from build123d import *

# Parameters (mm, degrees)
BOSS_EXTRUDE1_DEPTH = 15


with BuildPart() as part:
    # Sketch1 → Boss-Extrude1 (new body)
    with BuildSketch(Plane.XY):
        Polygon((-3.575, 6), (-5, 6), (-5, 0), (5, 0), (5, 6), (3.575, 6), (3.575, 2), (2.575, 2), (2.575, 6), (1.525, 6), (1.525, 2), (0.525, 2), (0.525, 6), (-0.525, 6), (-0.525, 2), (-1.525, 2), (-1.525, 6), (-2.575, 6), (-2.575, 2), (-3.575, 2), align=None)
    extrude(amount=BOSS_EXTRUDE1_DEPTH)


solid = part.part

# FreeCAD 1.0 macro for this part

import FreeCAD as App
import Part
import Sketcher
from FreeCAD import Vector
Q = App.Units.Quantity

doc = App.newDocument("Part")
body = doc.addObject("PartDesign::Body", "Body")

# Sketch on XY plane
sketch1 = body.newObject("Sketcher::SketchObject", "Sketch")
sketch1.AttachmentSupport = (doc.getObject("XY_Plane"), [""])
sketch1.MapMode = "FlatFace"
sketch1.addGeometry(Part.LineSegment(Vector(-3.6, 6, 0), Vector(-5, 6, 0)), False)
sketch1.addGeometry(Part.LineSegment(Vector(-5, 6, 0), Vector(-5, 0, 0)), False)
sketch1.addGeometry(Part.LineSegment(Vector(-5, 0, 0), Vector(5, 0, 0)), False)
sketch1.addGeometry(Part.LineSegment(Vector(5, 0, 0), Vector(5, 6, 0)), False)
sketch1.addGeometry(Part.LineSegment(Vector(5, 6, 0), Vector(3.6, 6, 0)), False)
sketch1.addGeometry(Part.LineSegment(Vector(3.6, 6, 0), Vector(3.6, 2, 0)), False)
sketch1.addGeometry(Part.LineSegment(Vector(3.6, 2, 0), Vector(2.6, 2, 0)), False)
sketch1.addGeometry(Part.LineSegment(Vector(2.6, 2, 0), Vector(2.6, 6, 0)), False)
sketch1.addGeometry(Part.LineSegment(Vector(2.6, 6, 0), Vector(1.5, 6, 0)), False)
sketch1.addGeometry(Part.LineSegment(Vector(1.5, 6, 0), Vector(1.5, 2, 0)), False)
sketch1.addGeometry(Part.LineSegment(Vector(1.5, 2, 0), Vector(0.5, 2, 0)), False)
sketch1.addGeometry(Part.LineSegment(Vector(0.5, 2, 0), Vector(0.5, 6, 0)), False)
sketch1.addGeometry(Part.LineSegment(Vector(0.5, 6, 0), Vector(-0.5, 6, 0)), False)
sketch1.addGeometry(Part.LineSegment(Vector(-0.5, 6, 0), Vector(-0.5, 2, 0)), False)
sketch1.addGeometry(Part.LineSegment(Vector(-0.5, 2, 0), Vector(-1.5, 2, 0)), False)
sketch1.addGeometry(Part.LineSegment(Vector(-1.5, 2, 0), Vector(-1.5, 6, 0)), False)
sketch1.addGeometry(Part.LineSegment(Vector(-1.5, 6, 0), Vector(-2.6, 6, 0)), False)
sketch1.addGeometry(Part.LineSegment(Vector(-2.6, 6, 0), Vector(-2.6, 2, 0)), False)
sketch1.addGeometry(Part.LineSegment(Vector(-2.6, 2, 0), Vector(-3.6, 2, 0)), False)
sketch1.addGeometry(Part.LineSegment(Vector(-3.6, 2, 0), Vector(-3.6, 6, 0)), False)
sketch1.addConstraint(Sketcher.Constraint("Coincident", 0, 2, 1, 1))
sketch1.addConstraint(Sketcher.Constraint("Coincident", 1, 2, 2, 1))
sketch1.addConstraint(Sketcher.Constraint("Coincident", 2, 2, 3, 1))
sketch1.addConstraint(Sketcher.Constraint("Coincident", 3, 2, 4, 1))
sketch1.addConstraint(Sketcher.Constraint("Coincident", 4, 2, 5, 1))
sketch1.addConstraint(Sketcher.Constraint("Coincident", 5, 2, 6, 1))
sketch1.addConstraint(Sketcher.Constraint("Coincident", 6, 2, 7, 1))
sketch1.addConstraint(Sketcher.Constraint("Coincident", 7, 2, 8, 1))
sketch1.addConstraint(Sketcher.Constraint("Coincident", 8, 2, 9, 1))
sketch1.addConstraint(Sketcher.Constraint("Coincident", 9, 2, 10, 1))
sketch1.addConstraint(Sketcher.Constraint("Coincident", 10, 2, 11, 1))
sketch1.addConstraint(Sketcher.Constraint("Coincident", 11, 2, 12, 1))
sketch1.addConstraint(Sketcher.Constraint("Coincident", 12, 2, 13, 1))
sketch1.addConstraint(Sketcher.Constraint("Coincident", 13, 2, 14, 1))
sketch1.addConstraint(Sketcher.Constraint("Coincident", 14, 2, 15, 1))
sketch1.addConstraint(Sketcher.Constraint("Coincident", 15, 2, 16, 1))
sketch1.addConstraint(Sketcher.Constraint("Coincident", 16, 2, 17, 1))
sketch1.addConstraint(Sketcher.Constraint("Coincident", 17, 2, 18, 1))
sketch1.addConstraint(Sketcher.Constraint("Coincident", 18, 2, 19, 1))
sketch1.addConstraint(Sketcher.Constraint("Coincident", 19, 2, 0, 1))
sketch1.addConstraint(Sketcher.Constraint("Horizontal", 0))
sketch1.addConstraint(Sketcher.Constraint("Vertical", 1))
sketch1.addConstraint(Sketcher.Constraint("Horizontal", 2))
sketch1.addConstraint(Sketcher.Constraint("Vertical", 3))
sketch1.addConstraint(Sketcher.Constraint("Horizontal", 4))
sketch1.addConstraint(Sketcher.Constraint("Vertical", 5))
sketch1.addConstraint(Sketcher.Constraint("Horizontal", 6))
sketch1.addConstraint(Sketcher.Constraint("Vertical", 7))
sketch1.addConstraint(Sketcher.Constraint("Horizontal", 8))
sketch1.addConstraint(Sketcher.Constraint("Vertical", 9))
sketch1.addConstraint(Sketcher.Constraint("Horizontal", 10))
sketch1.addConstraint(Sketcher.Constraint("Vertical", 11))
sketch1.addConstraint(Sketcher.Constraint("Horizontal", 12))
sketch1.addConstraint(Sketcher.Constraint("Vertical", 13))
sketch1.addConstraint(Sketcher.Constraint("Horizontal", 14))
sketch1.addConstraint(Sketcher.Constraint("Vertical", 15))
sketch1.addConstraint(Sketcher.Constraint("Horizontal", 16))
sketch1.addConstraint(Sketcher.Constraint("Vertical", 17))
sketch1.addConstraint(Sketcher.Constraint("Horizontal", 18))
sketch1.addConstraint(Sketcher.Constraint("Vertical", 19))
sketch1.addConstraint(Sketcher.Constraint("Symmetric", 1, 2, 2, 2, -1, 1))
sketch1.addConstraint(Sketcher.Constraint("Symmetric", 10, 2, 13, 2, -2))
sketch1.addConstraint(Sketcher.Constraint("Symmetric", 8, 2, 15, 2, -2))
sketch1.addConstraint(Sketcher.Constraint("Symmetric", 6, 2, 17, 2, -2))
sketch1.addConstraint(Sketcher.Constraint("Symmetric", 4, 2, 19, 2, -2))
sketch1.addConstraint(Sketcher.Constraint("Horizontal", 4, 2, 7, 2))
sketch1.addConstraint(Sketcher.Constraint("Horizontal", 6, 2, 9, 2))
sketch1.addConstraint(Sketcher.Constraint("Horizontal", 8, 2, 11, 2))
sketch1.addConstraint(Sketcher.Constraint("Equal", 6, 10))
sketch1.addConstraint(Sketcher.Constraint("Equal", 8, 12))
sketch1.addConstraint(Sketcher.Constraint("DistanceX", 2, 1, 2, 2, Q("10 mm")))
sketch1.addConstraint(Sketcher.Constraint("DistanceX", 6, 2, 6, 1, Q("1 mm")))
sketch1.addConstraint(Sketcher.Constraint("DistanceY", 1, 2, 1, 1, Q("6 mm")))
sketch1.addConstraint(Sketcher.Constraint("DistanceY", 5, 2, 5, 1, Q("4 mm")))
sketch1.addConstraint(Sketcher.Constraint("DistanceX", 8, 2, 8, 1, Q("1.05 mm")))
pad1 = body.newObject("PartDesign::Pad", "Pad")
pad1.Profile = sketch1
pad1.Length = 15

doc.recompute()
